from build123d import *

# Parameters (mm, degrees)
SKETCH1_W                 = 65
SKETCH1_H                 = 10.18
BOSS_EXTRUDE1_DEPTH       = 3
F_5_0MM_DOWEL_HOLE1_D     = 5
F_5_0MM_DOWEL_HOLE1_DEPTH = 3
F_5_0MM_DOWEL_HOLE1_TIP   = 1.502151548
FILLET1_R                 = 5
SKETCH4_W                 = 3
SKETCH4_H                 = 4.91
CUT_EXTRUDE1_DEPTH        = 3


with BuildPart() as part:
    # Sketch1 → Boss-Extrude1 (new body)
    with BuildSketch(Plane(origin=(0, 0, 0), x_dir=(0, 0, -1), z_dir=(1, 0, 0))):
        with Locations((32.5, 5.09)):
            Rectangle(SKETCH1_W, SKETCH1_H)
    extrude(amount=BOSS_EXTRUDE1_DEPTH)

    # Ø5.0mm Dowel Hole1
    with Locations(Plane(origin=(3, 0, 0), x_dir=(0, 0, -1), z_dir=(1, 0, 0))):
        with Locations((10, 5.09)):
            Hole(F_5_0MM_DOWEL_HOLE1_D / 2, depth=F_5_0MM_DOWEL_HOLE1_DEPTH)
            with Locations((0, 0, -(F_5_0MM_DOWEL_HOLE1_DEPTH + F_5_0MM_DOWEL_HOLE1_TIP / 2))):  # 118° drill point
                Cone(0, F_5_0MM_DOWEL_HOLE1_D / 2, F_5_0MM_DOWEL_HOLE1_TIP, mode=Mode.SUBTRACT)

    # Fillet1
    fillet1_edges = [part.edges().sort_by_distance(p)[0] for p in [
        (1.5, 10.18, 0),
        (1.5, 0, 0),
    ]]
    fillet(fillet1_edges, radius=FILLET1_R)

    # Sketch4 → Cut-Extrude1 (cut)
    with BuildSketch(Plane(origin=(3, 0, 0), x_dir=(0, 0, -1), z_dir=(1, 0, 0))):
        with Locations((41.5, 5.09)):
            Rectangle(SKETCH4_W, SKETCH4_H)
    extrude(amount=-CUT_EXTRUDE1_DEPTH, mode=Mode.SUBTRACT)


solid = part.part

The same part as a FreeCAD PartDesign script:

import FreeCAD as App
import Part
import Sketcher


def edges_at(feature, points):
    """Names of the edges that pass closest to the given points."""
    edges = feature.Shape.Edges
    near = lambda p: min(range(len(edges)), key=lambda i: edges[i].distToShape(Part.Vertex(*p))[0])
    return sorted({f"Edge{near(p) + 1}" for p in points})


def add_polygon(sketch, points):
    """Adds a closed chain of lines whose ends are joined by coincident constraints."""
    first, n = sketch.GeometryCount, len(points)
    for a, b in zip(points, points[1:] + points[:1]):
        sketch.addGeometry(Part.LineSegment(App.Vector(*a, 0), App.Vector(*b, 0)), False)
    for i in range(n):
        sketch.addConstraint(Sketcher.Constraint("Coincident", first + i, 2, first + (i + 1) % n, 1))

doc = App.newDocument("Part")
body = doc.addObject("PartDesign::Body", "Body")

sketch1 = doc.addObject("Sketcher::SketchObject", "Sketch")
body.addObject(sketch1)
sketch1.AttachmentSupport = (doc.YZ_Plane, [""])
sketch1.MapMode = "FlatFace"
add_polygon(sketch1, [(10, 0), (0, 0), (0, -65), (10, -65)])
sketch1.addConstraint(Sketcher.Constraint("Horizontal", 0))
sketch1.addConstraint(Sketcher.Constraint("Vertical", 1))
sketch1.addConstraint(Sketcher.Constraint("Horizontal", 2))
sketch1.addConstraint(Sketcher.Constraint("Vertical", 3))
sketch1.addConstraint(Sketcher.Constraint("Coincident", 0, 2, -1, 1))
sketch1.addConstraint(Sketcher.Constraint("DistanceY", 1, 2, 1, 1, 65.0))
sketch1.addConstraint(Sketcher.Constraint("DistanceX", 0, 2, 0, 1, 10.18))
pad1 = doc.addObject("PartDesign::Pad", "Pad")
body.addObject(pad1)
pad1.Profile = sketch1
pad1.Length = 3

sketch2 = doc.addObject("Sketcher::SketchObject", "Sketch001")
body.addObject(sketch2)
sketch2.AttachmentSupport = (doc.YZ_Plane, [""])
sketch2.MapMode = "FlatFace"
sketch2.AttachmentOffset = App.Placement(App.Vector(0, 0, 3), App.Rotation())
sketch2.addGeometry(Part.Circle(App.Vector(5.1, -10, 0), App.Vector(0, 0, 1), 2.5), False)
sketch2.addConstraint(Sketcher.Constraint("Diameter", 0, 5.0))
sketch2.addConstraint(Sketcher.Constraint("DistanceY", 0, 3, -1, 1, 10.0))
sketch2.addConstraint(Sketcher.Constraint("DistanceX", -1, 1, 0, 3, 5.09))
doc.recompute()
hole = doc.addObject("PartDesign::Hole", "Hole")
body.addObject(hole)
hole.Profile = sketch2
hole.ThreadType = "None"
hole.Diameter = 5
hole.DepthType = "Dimension"
hole.Depth = 3
hole.DrillPoint = "Angled"
hole.DrillPointAngle = 118
doc.recompute()

fillet = doc.addObject("PartDesign::Fillet", "Fillet")
body.addObject(fillet)
fillet.Base = (hole, edges_at(hole, [(1.5, 10.18, 0), (1.5, 0, 0)]))
fillet.Radius = 5

sketch3 = doc.addObject("Sketcher::SketchObject", "Sketch002")
body.addObject(sketch3)
sketch3.AttachmentSupport = (doc.YZ_Plane, [""])
sketch3.MapMode = "FlatFace"
sketch3.AttachmentOffset = App.Placement(App.Vector(0, 0, 3), App.Rotation())
add_polygon(sketch3, [(7.5, -40), (2.6, -40), (2.6, -43), (7.5, -43)])
sketch3.addConstraint(Sketcher.Constraint("Horizontal", 0))
sketch3.addConstraint(Sketcher.Constraint("Vertical", 1))
sketch3.addConstraint(Sketcher.Constraint("Horizontal", 2))
sketch3.addConstraint(Sketcher.Constraint("Vertical", 3))
sketch3.addConstraint(Sketcher.Constraint("DistanceY", 1, 2, 1, 1, 3.0))
sketch3.addConstraint(Sketcher.Constraint("DistanceY", 0, 2, -1, 1, 40.0))
sketch3.addConstraint(Sketcher.Constraint("DistanceX", 0, 2, 0, 1, 4.91))
sketch3.addConstraint(Sketcher.Constraint("DistanceX", -1, 1, 0, 2, 2.635))
pocket1 = doc.addObject("PartDesign::Pocket", "Pocket")
body.addObject(pocket1)
pocket1.Profile = sketch3
pocket1.Length = 3

doc.recompute()
